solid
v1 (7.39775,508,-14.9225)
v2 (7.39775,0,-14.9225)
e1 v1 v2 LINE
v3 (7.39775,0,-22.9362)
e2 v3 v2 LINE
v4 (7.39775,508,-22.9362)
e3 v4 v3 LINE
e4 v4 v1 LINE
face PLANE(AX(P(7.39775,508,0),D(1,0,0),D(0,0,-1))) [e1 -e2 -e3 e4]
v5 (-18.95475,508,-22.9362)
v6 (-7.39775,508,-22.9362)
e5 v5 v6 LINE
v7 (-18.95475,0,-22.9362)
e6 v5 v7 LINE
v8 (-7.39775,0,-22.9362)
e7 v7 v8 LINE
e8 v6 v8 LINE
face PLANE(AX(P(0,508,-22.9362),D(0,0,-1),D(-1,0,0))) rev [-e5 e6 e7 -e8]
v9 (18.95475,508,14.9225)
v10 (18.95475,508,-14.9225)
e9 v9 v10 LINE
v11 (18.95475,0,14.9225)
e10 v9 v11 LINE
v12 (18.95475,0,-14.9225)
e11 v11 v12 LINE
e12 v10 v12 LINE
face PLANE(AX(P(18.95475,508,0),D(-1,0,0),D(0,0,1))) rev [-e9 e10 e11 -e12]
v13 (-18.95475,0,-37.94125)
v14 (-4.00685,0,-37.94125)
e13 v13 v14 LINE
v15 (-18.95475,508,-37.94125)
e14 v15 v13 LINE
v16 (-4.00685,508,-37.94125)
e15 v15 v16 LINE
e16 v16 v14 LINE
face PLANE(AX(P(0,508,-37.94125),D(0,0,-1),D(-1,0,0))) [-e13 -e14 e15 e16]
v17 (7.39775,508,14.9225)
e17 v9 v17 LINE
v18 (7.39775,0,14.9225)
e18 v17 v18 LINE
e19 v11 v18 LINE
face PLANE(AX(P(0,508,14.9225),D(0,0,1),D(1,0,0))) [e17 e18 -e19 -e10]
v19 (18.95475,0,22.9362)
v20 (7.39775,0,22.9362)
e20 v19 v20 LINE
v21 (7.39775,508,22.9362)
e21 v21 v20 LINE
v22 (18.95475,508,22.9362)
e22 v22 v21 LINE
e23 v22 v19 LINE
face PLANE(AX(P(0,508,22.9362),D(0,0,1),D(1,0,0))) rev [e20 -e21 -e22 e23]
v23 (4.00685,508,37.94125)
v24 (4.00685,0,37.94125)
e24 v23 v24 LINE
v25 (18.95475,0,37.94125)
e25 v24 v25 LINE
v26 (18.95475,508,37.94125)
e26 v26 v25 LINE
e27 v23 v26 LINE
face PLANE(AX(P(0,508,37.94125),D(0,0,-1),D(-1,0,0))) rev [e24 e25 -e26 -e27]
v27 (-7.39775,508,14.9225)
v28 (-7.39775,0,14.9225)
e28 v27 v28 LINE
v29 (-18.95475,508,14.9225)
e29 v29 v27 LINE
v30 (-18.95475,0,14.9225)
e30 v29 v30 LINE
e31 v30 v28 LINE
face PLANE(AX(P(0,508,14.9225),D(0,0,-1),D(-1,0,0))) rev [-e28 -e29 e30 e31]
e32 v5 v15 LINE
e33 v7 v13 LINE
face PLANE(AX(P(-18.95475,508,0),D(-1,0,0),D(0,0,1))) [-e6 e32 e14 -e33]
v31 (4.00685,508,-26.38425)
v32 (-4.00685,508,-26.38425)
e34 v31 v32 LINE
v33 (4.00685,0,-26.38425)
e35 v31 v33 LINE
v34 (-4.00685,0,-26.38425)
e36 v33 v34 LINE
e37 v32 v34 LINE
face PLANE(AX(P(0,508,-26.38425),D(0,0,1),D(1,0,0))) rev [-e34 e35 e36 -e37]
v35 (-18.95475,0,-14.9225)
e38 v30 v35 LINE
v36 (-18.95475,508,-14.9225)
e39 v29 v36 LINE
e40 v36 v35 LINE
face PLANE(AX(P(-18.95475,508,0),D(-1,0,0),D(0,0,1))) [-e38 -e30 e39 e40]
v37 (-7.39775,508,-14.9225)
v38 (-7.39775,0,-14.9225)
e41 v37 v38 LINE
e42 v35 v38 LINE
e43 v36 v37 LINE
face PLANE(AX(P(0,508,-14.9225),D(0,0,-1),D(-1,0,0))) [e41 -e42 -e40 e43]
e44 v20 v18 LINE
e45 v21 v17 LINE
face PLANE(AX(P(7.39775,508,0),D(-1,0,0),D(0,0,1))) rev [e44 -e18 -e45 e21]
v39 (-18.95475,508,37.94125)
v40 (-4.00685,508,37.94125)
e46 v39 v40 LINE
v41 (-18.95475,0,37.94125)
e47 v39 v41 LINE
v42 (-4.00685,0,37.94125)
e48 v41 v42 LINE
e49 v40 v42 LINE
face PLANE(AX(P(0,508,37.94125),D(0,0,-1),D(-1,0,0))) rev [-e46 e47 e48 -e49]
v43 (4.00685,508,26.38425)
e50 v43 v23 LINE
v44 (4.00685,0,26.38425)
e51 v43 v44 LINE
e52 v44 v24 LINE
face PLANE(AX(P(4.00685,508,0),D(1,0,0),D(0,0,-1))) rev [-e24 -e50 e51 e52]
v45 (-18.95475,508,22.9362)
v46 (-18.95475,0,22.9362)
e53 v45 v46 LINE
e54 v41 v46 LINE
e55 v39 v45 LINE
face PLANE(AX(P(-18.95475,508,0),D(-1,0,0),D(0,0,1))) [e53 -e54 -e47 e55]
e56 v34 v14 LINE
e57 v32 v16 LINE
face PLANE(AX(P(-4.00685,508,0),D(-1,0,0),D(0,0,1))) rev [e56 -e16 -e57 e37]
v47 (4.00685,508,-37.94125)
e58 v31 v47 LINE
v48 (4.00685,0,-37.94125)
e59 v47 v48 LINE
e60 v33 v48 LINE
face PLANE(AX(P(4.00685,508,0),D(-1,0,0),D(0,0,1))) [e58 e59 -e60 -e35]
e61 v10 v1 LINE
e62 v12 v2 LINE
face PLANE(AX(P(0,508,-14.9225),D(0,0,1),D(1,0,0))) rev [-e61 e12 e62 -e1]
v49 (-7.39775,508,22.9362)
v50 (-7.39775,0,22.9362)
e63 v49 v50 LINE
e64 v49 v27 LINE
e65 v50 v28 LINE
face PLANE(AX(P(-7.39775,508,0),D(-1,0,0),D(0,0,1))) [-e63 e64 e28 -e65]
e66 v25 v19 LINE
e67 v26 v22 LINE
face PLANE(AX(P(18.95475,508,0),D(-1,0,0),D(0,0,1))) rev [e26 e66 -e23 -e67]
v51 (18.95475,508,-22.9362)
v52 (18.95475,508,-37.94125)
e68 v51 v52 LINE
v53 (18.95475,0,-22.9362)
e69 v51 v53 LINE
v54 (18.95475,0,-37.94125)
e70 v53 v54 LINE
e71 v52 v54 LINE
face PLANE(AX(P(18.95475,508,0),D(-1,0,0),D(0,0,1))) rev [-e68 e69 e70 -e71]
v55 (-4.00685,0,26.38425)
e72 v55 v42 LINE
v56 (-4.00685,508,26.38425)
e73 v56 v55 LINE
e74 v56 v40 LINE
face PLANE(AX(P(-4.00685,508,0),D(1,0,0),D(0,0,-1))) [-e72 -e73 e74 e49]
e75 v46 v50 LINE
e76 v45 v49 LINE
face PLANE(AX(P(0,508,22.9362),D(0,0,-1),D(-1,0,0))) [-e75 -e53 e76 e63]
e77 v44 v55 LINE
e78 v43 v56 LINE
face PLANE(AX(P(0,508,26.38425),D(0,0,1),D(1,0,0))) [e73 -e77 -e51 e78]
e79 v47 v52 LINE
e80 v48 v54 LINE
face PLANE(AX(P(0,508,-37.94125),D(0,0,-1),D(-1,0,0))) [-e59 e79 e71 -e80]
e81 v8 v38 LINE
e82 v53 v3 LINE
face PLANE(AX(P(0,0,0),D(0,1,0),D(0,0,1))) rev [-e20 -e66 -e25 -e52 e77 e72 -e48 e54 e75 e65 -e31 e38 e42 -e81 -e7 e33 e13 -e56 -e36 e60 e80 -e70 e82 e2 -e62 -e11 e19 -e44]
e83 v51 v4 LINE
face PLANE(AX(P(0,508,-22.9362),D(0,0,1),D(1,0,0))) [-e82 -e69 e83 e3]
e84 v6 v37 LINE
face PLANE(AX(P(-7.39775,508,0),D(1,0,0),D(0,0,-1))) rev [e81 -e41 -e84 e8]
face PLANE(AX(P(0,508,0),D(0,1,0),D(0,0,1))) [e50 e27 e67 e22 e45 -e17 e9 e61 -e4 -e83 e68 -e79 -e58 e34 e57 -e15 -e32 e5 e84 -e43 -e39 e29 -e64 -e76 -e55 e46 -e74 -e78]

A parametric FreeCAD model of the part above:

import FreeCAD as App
import Part
import Sketcher
from FreeCAD import Vector
Q = App.Units.Quantity


def add_polygon(sketch, points):
    """Adds a closed chain of lines whose ends are joined by coincident constraints."""
    first, n = sketch.GeometryCount, len(points)
    for a, b in zip(points, points[1:] + points[:1]):
        sketch.addGeometry(Part.LineSegment(App.Vector(*a, 0), App.Vector(*b, 0)), False)
    for i in range(n):
        sketch.addConstraint(Sketcher.Constraint("Coincident", first + i, 2, first + (i + 1) % n, 1))

doc = App.newDocument("Part")
params = doc.addObject("Spreadsheet::Sheet", "Params")
for row, (alias, value) in enumerate([
    ("sketch1_width", "0.455 in"),
    ("sketch1_height", "1.175 in"),
    ("pad1_length", "20 in"),
], start=1):
    params.set(f"A{row}", alias)
    params.set(f"B{row}", "=" + value)
    params.setAlias(f"B{row}", alias)

body = doc.addObject("PartDesign::Body", "Body")

sketch1 = body.newObject("Sketcher::SketchObject", "Sketch")
sketch1.AttachmentSupport = (doc.getObject("XZ_Plane"), [""])
sketch1.MapMode = "FlatFace"
add_polygon(sketch1, [(-19, 23), (-19, 38), (-4, 38), (-4, 26), (4, 26), (4, 38), (19, 38), (19, 23), (7, 23), (7, 15), (19, 15), (19, -15), (7, -15), (7, -23), (19, -23), (19, -38), (4, -38), (4, -26), (-4, -26), (-4, -38), (-19, -38), (-19, -23), (-7, -23), (-7, -15), (-19, -15), (-19, 15), (-7, 15), (-7, 23)])
sketch1.addConstraint([
    Sketcher.Constraint("Vertical", 0),
    Sketcher.Constraint("Horizontal", 1),
    Sketcher.Constraint("Vertical", 2),
    Sketcher.Constraint("Horizontal", 3),
    Sketcher.Constraint("Vertical", 4),
    Sketcher.Constraint("Horizontal", 5),
    Sketcher.Constraint("Vertical", 6),
    Sketcher.Constraint("Horizontal", 7),
    Sketcher.Constraint("Vertical", 8),
    Sketcher.Constraint("Horizontal", 9),
    Sketcher.Constraint("Vertical", 10),
    Sketcher.Constraint("Horizontal", 11),
    Sketcher.Constraint("Vertical", 12),
    Sketcher.Constraint("Horizontal", 13),
    Sketcher.Constraint("Vertical", 14),
    Sketcher.Constraint("Horizontal", 15),
    Sketcher.Constraint("Vertical", 16),
    Sketcher.Constraint("Horizontal", 17),
    Sketcher.Constraint("Vertical", 18),
    Sketcher.Constraint("Horizontal", 19),
    Sketcher.Constraint("Vertical", 20),
    Sketcher.Constraint("Horizontal", 21),
    Sketcher.Constraint("Vertical", 22),
    Sketcher.Constraint("Horizontal", 23),
    Sketcher.Constraint("Vertical", 24),
    Sketcher.Constraint("Horizontal", 25),
    Sketcher.Constraint("Vertical", 26),
    Sketcher.Constraint("Horizontal", 27),
    Sketcher.Constraint("Symmetric", 0, 2, 14, 2, -1, 1),
    Sketcher.Constraint("Symmetric", 2, 2, 16, 2, -1, 1),
    Sketcher.Constraint("Symmetric", 4, 2, 18, 2, -1, 1),
    Sketcher.Constraint("Symmetric", 6, 2, 20, 2, -1, 1),
    Sketcher.Constraint("Symmetric", 8, 2, 22, 2, -1, 1),
    Sketcher.Constraint("Symmetric", 10, 2, 24, 2, -1, 1),
    Sketcher.Constraint("Symmetric", 12, 2, 26, 2, -1, 1),
    Sketcher.Constraint("Symmetric", 1, 2, 4, 2, -2),
    Sketcher.Constraint("Symmetric", 13, 2, 20, 2, -2),
    Sketcher.Constraint("Symmetric", 11, 2, 22, 2, -2),
    Sketcher.Constraint("Vertical", 6, 2, 9, 2),
    Sketcher.Constraint("Equal", 27, 2),
    Sketcher.Constraint("Equal", 17, 8),
    Sketcher.Constraint("DistanceX", 7, 2, 7, 1, Q("0.455 in")),
    Sketcher.Constraint("DistanceY", 10, 2, 10, 1, Q("1.175 in")),
    Sketcher.Constraint("DistanceX", 1, 1, 1, 2, Q("0.5885 in")),
    Sketcher.Constraint("DistanceX", 3, 1, 3, 2, Q("0.3155 in")),
    Sketcher.Constraint("DistanceY", 8, 2, 4, 2, Q("0.90625 in")),
])
sketch1.setExpression("Constraints[69]", "Params.sketch1_width")
sketch1.setExpression("Constraints[70]", "Params.sketch1_height")
pad1 = body.newObject("PartDesign::Pad", "Pad")
pad1.Profile = sketch1
pad1.setExpression("Length", "Params.pad1_length")
pad1.Reversed = True

doc.recompute()
